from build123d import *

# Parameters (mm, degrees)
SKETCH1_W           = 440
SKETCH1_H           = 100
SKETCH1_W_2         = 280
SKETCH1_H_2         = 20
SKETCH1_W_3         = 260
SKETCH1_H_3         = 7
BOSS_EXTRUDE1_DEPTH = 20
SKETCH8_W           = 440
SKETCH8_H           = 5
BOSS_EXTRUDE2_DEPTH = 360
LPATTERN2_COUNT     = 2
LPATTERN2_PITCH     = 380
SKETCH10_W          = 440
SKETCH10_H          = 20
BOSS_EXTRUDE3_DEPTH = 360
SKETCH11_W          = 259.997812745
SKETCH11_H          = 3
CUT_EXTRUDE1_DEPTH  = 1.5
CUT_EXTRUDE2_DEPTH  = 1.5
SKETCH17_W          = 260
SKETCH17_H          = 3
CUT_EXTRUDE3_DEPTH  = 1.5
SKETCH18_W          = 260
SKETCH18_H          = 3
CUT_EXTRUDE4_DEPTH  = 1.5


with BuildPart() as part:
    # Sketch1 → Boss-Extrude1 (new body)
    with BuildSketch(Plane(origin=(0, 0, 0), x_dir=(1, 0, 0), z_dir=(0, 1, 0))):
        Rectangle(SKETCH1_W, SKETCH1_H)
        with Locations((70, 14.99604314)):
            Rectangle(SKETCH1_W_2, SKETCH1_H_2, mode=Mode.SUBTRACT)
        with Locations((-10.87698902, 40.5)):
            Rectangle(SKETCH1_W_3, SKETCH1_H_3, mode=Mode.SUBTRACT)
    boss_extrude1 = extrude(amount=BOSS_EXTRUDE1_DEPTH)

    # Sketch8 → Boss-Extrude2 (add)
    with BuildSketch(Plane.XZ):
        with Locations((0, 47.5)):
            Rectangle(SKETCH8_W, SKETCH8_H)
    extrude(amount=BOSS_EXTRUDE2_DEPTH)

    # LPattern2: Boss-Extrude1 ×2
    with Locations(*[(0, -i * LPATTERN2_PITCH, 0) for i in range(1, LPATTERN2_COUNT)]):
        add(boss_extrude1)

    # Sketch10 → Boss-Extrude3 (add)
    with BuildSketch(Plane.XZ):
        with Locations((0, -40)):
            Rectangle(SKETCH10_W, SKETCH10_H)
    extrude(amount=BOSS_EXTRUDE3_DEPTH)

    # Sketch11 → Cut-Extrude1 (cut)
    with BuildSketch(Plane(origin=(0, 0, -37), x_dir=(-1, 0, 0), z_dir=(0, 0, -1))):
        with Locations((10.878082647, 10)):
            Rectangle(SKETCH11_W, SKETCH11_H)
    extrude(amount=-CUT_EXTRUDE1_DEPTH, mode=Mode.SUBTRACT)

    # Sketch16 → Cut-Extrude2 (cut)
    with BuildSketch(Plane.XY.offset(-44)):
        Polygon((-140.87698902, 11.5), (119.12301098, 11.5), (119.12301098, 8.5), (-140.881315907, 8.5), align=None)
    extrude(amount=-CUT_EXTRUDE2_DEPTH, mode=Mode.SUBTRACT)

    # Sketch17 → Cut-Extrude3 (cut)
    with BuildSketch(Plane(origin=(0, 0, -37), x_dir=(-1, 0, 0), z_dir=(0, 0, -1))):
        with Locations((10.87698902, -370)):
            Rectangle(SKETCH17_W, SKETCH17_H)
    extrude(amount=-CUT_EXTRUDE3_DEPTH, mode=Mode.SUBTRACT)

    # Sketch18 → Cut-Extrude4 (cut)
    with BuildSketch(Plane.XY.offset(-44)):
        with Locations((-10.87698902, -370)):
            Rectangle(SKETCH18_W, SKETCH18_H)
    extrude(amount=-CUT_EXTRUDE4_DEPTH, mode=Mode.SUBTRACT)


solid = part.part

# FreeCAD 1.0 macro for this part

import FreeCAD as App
import Part
import Sketcher
Q = App.Units.Quantity

doc = App.newDocument("Part")
params = doc.addObject("Spreadsheet::Sheet", "Params")
for row, (alias, value) in enumerate([
    ("sketch1_width", "440 mm"),
    ("sketch1_width2", "280 mm"),
    ("sketch1_width3", "260 mm"),
    ("sketch1_height", "100 mm"),
    ("sketch1_height2", "20 mm"),
    ("pad1_length", "20 mm"),
    ("sketch2_width", "440 mm"),
    ("sketch2_height", "5 mm"),
    ("pad2_length", "360 mm"),
    ("linearpattern_pitch", "380 mm"),
    ("sketch3_width", "440 mm"),
    ("sketch3_height", "20 mm"),
    ("pad3_length", "360 mm"),
    ("sketch4_height", "3 mm"),
    ("pocket1_length", "1.5 mm"),
    ("sketch5_width", "260 mm"),
    ("sketch5_height", "3 mm"),
    ("pocket2_length", "1.5 mm"),
    ("sketch6_width", "260 mm"),
    ("sketch6_height", "3 mm"),
    ("pocket3_length", "1.5 mm"),
    ("sketch7_width", "260 mm"),
    ("sketch7_height", "3 mm"),
    ("pocket4_length", "1.5 mm"),
], start=1):
    params.set(f"A{row}", alias)
    params.set(f"B{row}", "=" + value)
    params.setAlias(f"B{row}", alias)

body = doc.addObject("PartDesign::Body", "Body")

sketch1 = body.newObject("Sketcher::SketchObject", "Sketch")
sketch1.AttachmentSupport = (doc.getObject("XZ_Plane"), [""])
sketch1.MapMode = "FlatFace"
sketch1.addGeometry(Part.LineSegment(App.Vector(-220, -50, 0), App.Vector(-220, 50, 0)), False)
sketch1.addGeometry(Part.LineSegment(App.Vector(-220, 50, 0), App.Vector(220, 50, 0)), False)
sketch1.addGeometry(Part.LineSegment(App.Vector(220, 50, 0), App.Vector(220, -50, 0)), False)
sketch1.addGeometry(Part.LineSegment(App.Vector(220, -50, 0), App.Vector(-220, -50, 0)), False)
sketch1.addGeometry(Part.LineSegment(App.Vector(210, -4.996043, 0), App.Vector(-70, -4.996043, 0)), False)
sketch1.addGeometry(Part.LineSegment(App.Vector(-70, -4.996043, 0), App.Vector(-70, -24.996043, 0)), False)
sketch1.addGeometry(Part.LineSegment(App.Vector(-70, -24.996043, 0), App.Vector(210, -24.996043, 0)), False)
sketch1.addGeometry(Part.LineSegment(App.Vector(210, -24.996043, 0), App.Vector(210, -4.996043, 0)), False)
sketch1.addGeometry(Part.LineSegment(App.Vector(119.123011, -37, 0), App.Vector(-140.876989, -37, 0)), False)
sketch1.addGeometry(Part.LineSegment(App.Vector(-140.876989, -37, 0), App.Vector(-140.876989, -44, 0)), False)
sketch1.addGeometry(Part.LineSegment(App.Vector(-140.876989, -44, 0), App.Vector(119.123011, -44, 0)), False)
sketch1.addGeometry(Part.LineSegment(App.Vector(119.123011, -44, 0), App.Vector(119.123011, -37, 0)), False)
sketch1.addConstraint(Sketcher.Constraint("Coincident", 0, 2, 1, 1))
sketch1.addConstraint(Sketcher.Constraint("Coincident", 1, 2, 2, 1))
sketch1.addConstraint(Sketcher.Constraint("Coincident", 2, 2, 3, 1))
sketch1.addConstraint(Sketcher.Constraint("Coincident", 3, 2, 0, 1))
sketch1.addConstraint(Sketcher.Constraint("Coincident", 4, 2, 5, 1))
sketch1.addConstraint(Sketcher.Constraint("Coincident", 5, 2, 6, 1))
sketch1.addConstraint(Sketcher.Constraint("Coincident", 6, 2, 7, 1))
sketch1.addConstraint(Sketcher.Constraint("Coincident", 7, 2, 4, 1))
sketch1.addConstraint(Sketcher.Constraint("Coincident", 8, 2, 9, 1))
sketch1.addConstraint(Sketcher.Constraint("Coincident", 9, 2, 10, 1))
sketch1.addConstraint(Sketcher.Constraint("Coincident", 10, 2, 11, 1))
sketch1.addConstraint(Sketcher.Constraint("Coincident", 11, 2, 8, 1))
sketch1.addConstraint(Sketcher.Constraint("Vertical", 0))
sketch1.addConstraint(Sketcher.Constraint("Horizontal", 1))
sketch1.addConstraint(Sketcher.Constraint("Vertical", 2))
sketch1.addConstraint(Sketcher.Constraint("Horizontal", 3))
sketch1.addConstraint(Sketcher.Constraint("Horizontal", 4))
sketch1.addConstraint(Sketcher.Constraint("Vertical", 5))
sketch1.addConstraint(Sketcher.Constraint("Horizontal", 6))
sketch1.addConstraint(Sketcher.Constraint("Vertical", 7))
sketch1.addConstraint(Sketcher.Constraint("Horizontal", 8))
sketch1.addConstraint(Sketcher.Constraint("Vertical", 9))
sketch1.addConstraint(Sketcher.Constraint("Horizontal", 10))
sketch1.addConstraint(Sketcher.Constraint("Vertical", 11))
sketch1.addConstraint(Sketcher.Constraint("Symmetric", 0, 2, 2, 2, -1, 1))
sketch1.addConstraint(Sketcher.Constraint("DistanceX", 1, 1, 1, 2, Q("440 mm")))
sketch1.addConstraint(Sketcher.Constraint("DistanceX", 4, 2, 4, 1, Q("280 mm")))
sketch1.addConstraint(Sketcher.Constraint("DistanceX", 8, 2, 8, 1, Q("260 mm")))
sketch1.addConstraint(Sketcher.Constraint("DistanceY", 0, 1, 0, 2, Q("100 mm")))
sketch1.addConstraint(Sketcher.Constraint("DistanceY", 5, 2, 5, 1, Q("20 mm")))
sketch1.addConstraint(Sketcher.Constraint("DistanceY", 9, 2, 9, 1, Q("7 mm")))
sketch1.addConstraint(Sketcher.Constraint("DistanceX", 4, 2, -1, 1, Q("70 mm")))
sketch1.addConstraint(Sketcher.Constraint("DistanceY", 8, 2, -1, 1, Q("37 mm")))
sketch1.addConstraint(Sketcher.Constraint("DistanceX", 8, 2, -1, 1, Q("140.876989 mm")))
sketch1.addConstraint(Sketcher.Constraint("DistanceY", 4, 2, -1, 1, Q("4.996043 mm")))
sketch1.setExpression("Constraints[25]", "Params.sketch1_width")
sketch1.setExpression("Constraints[26]", "Params.sketch1_width2")
sketch1.setExpression("Constraints[27]", "Params.sketch1_width3")
sketch1.setExpression("Constraints[28]", "Params.sketch1_height")
sketch1.setExpression("Constraints[29]", "Params.sketch1_height2")
pad1 = body.newObject("PartDesign::Pad", "Pad")
pad1.Profile = sketch1
pad1.setExpression("Length", "Params.pad1_length")
pad1.Reversed = True

sketch2 = body.newObject("Sketcher::SketchObject", "Sketch001")
sketch2.AttachmentSupport = (doc.getObject("XZ_Plane"), [""])
sketch2.MapMode = "FlatFace"
sketch2.addGeometry(Part.LineSegment(App.Vector(-220, 50, 0), App.Vector(-220, 45, 0)), False)
sketch2.addGeometry(Part.LineSegment(App.Vector(-220, 45, 0), App.Vector(220, 45, 0)), False)
sketch2.addGeometry(Part.LineSegment(App.Vector(220, 45, 0), App.Vector(220, 50, 0)), False)
sketch2.addGeometry(Part.LineSegment(App.Vector(220, 50, 0), App.Vector(-220, 50, 0)), False)
sketch2.addConstraint(Sketcher.Constraint("Coincident", 0, 2, 1, 1))
sketch2.addConstraint(Sketcher.Constraint("Coincident", 1, 2, 2, 1))
sketch2.addConstraint(Sketcher.Constraint("Coincident", 2, 2, 3, 1))
sketch2.addConstraint(Sketcher.Constraint("Coincident", 3, 2, 0, 1))
sketch2.addConstraint(Sketcher.Constraint("Vertical", 0))
sketch2.addConstraint(Sketcher.Constraint("Horizontal", 1))
sketch2.addConstraint(Sketcher.Constraint("Vertical", 2))
sketch2.addConstraint(Sketcher.Constraint("Horizontal", 3))
sketch2.addConstraint(Sketcher.Constraint("DistanceX", 1, 1, 1, 2, Q("440 mm")))
sketch2.addConstraint(Sketcher.Constraint("DistanceY", 0, 2, 0, 1, Q("5 mm")))
sketch2.addConstraint(Sketcher.Constraint("DistanceX", 0, 2, -1, 1, Q("220 mm")))
sketch2.addConstraint(Sketcher.Constraint("DistanceY", -1, 1, 0, 2, Q("45 mm")))
sketch2.setExpression("Constraints[8]", "Params.sketch2_width")
sketch2.setExpression("Constraints[9]", "Params.sketch2_height")
pad2 = body.newObject("PartDesign::Pad", "Pad001")
pad2.Profile = sketch2
pad2.setExpression("Length", "Params.pad2_length")
doc.recompute()

linearpattern = body.newObject("PartDesign::LinearPattern", "LinearPattern")
linearpattern.Originals = [pad1]
linearpattern.Direction = (doc.getObject("Y_Axis"), [""])
linearpattern.Mode = "offset"
linearpattern.setExpression("Offset", "Params.linearpattern_pitch")
linearpattern.Occurrences = 2
linearpattern.Reversed = True
body.Tip = linearpattern

sketch3 = body.newObject("Sketcher::SketchObject", "Sketch002")
sketch3.AttachmentSupport = (doc.getObject("XZ_Plane"), [""])
sketch3.MapMode = "FlatFace"
sketch3.addGeometry(Part.LineSegment(App.Vector(-220, -30, 0), App.Vector(-220, -50, 0)), False)
sketch3.addGeometry(Part.LineSegment(App.Vector(-220, -50, 0), App.Vector(220, -50, 0)), False)
sketch3.addGeometry(Part.LineSegment(App.Vector(220, -50, 0), App.Vector(220, -30, 0)), False)
sketch3.addGeometry(Part.LineSegment(App.Vector(220, -30, 0), App.Vector(-220, -30, 0)), False)
sketch3.addConstraint(Sketcher.Constraint("Coincident", 0, 2, 1, 1))
sketch3.addConstraint(Sketcher.Constraint("Coincident", 1, 2, 2, 1))
sketch3.addConstraint(Sketcher.Constraint("Coincident", 2, 2, 3, 1))
sketch3.addConstraint(Sketcher.Constraint("Coincident", 3, 2, 0, 1))
sketch3.addConstraint(Sketcher.Constraint("Vertical", 0))
sketch3.addConstraint(Sketcher.Constraint("Horizontal", 1))
sketch3.addConstraint(Sketcher.Constraint("Vertical", 2))
sketch3.addConstraint(Sketcher.Constraint("Horizontal", 3))
sketch3.addConstraint(Sketcher.Constraint("DistanceX", 1, 1, 1, 2, Q("440 mm")))
sketch3.addConstraint(Sketcher.Constraint("DistanceY", 0, 2, 0, 1, Q("20 mm")))
sketch3.addConstraint(Sketcher.Constraint("DistanceX", 0, 2, -1, 1, Q("220 mm")))
sketch3.addConstraint(Sketcher.Constraint("DistanceY", 0, 2, -1, 1, Q("50 mm")))
sketch3.setExpression("Constraints[8]", "Params.sketch3_width")
sketch3.setExpression("Constraints[9]", "Params.sketch3_height")
pad3 = body.newObject("PartDesign::Pad", "Pad002")
pad3.Profile = sketch3
pad3.setExpression("Length", "Params.pad3_length")

sketch4 = body.newObject("Sketcher::SketchObject", "Sketch003")
sketch4.AttachmentSupport = (doc.getObject("XY_Plane"), [""])
sketch4.MapMode = "FlatFace"
sketch4.AttachmentOffset = App.Placement(App.Vector(0, 0, -37), App.Rotation())
sketch4.addGeometry(Part.LineSegment(App.Vector(119.120824, 11.5, 0), App.Vector(119.120824, 8.5, 0)), False)
sketch4.addGeometry(Part.LineSegment(App.Vector(119.120824, 8.5, 0), App.Vector(-140.876989, 8.5, 0)), False)
sketch4.addGeometry(Part.LineSegment(App.Vector(-140.876989, 8.5, 0), App.Vector(-140.876989, 11.5, 0)), False)
sketch4.addGeometry(Part.LineSegment(App.Vector(-140.876989, 11.5, 0), App.Vector(119.120824, 11.5, 0)), False)
sketch4.addConstraint(Sketcher.Constraint("Coincident", 0, 2, 1, 1))
sketch4.addConstraint(Sketcher.Constraint("Coincident", 1, 2, 2, 1))
sketch4.addConstraint(Sketcher.Constraint("Coincident", 2, 2, 3, 1))
sketch4.addConstraint(Sketcher.Constraint("Coincident", 3, 2, 0, 1))
sketch4.addConstraint(Sketcher.Constraint("Vertical", 0))
sketch4.addConstraint(Sketcher.Constraint("Horizontal", 1))
sketch4.addConstraint(Sketcher.Constraint("Vertical", 2))
sketch4.addConstraint(Sketcher.Constraint("Horizontal", 3))
sketch4.addConstraint(Sketcher.Constraint("DistanceY", 0, 2, 0, 1, Q("3 mm")))
sketch4.addConstraint(Sketcher.Constraint("DistanceY", -1, 1, 0, 2, Q("8.5 mm")))
sketch4.addConstraint(Sketcher.Constraint("DistanceX", 1, 2, 1, 1, Q("259.997813 mm")))
sketch4.addConstraint(Sketcher.Constraint("DistanceX", 1, 2, -1, 1, Q("140.876989 mm")))
sketch4.setExpression("Constraints[8]", "Params.sketch4_height")
pocket1 = body.newObject("PartDesign::Pocket", "Pocket")
pocket1.Profile = sketch4
pocket1.setExpression("Length", "Params.pocket1_length")
pocket1.Reversed = True

sketch5 = body.newObject("Sketcher::SketchObject", "Sketch004")
sketch5.AttachmentSupport = (doc.getObject("XY_Plane"), [""])
sketch5.MapMode = "FlatFace"
sketch5.AttachmentOffset = App.Placement(App.Vector(0, 0, -44), App.Rotation())
sketch5.addGeometry(Part.LineSegment(App.Vector(119.123011, 11.5, 0), App.Vector(-140.876989, 11.5, 0)), False)
sketch5.addGeometry(Part.LineSegment(App.Vector(-140.876989, 11.5, 0), App.Vector(-140.881316, 8.5, 0)), False)
sketch5.addGeometry(Part.LineSegment(App.Vector(-140.881316, 8.5, 0), App.Vector(119.123011, 8.5, 0)), False)
sketch5.addGeometry(Part.LineSegment(App.Vector(119.123011, 8.5, 0), App.Vector(119.123011, 11.5, 0)), False)
sketch5.addConstraint(Sketcher.Constraint("Coincident", 0, 2, 1, 1))
sketch5.addConstraint(Sketcher.Constraint("Coincident", 1, 2, 2, 1))
sketch5.addConstraint(Sketcher.Constraint("Coincident", 2, 2, 3, 1))
sketch5.addConstraint(Sketcher.Constraint("Coincident", 3, 2, 0, 1))
sketch5.addConstraint(Sketcher.Constraint("Horizontal", 0))
sketch5.addConstraint(Sketcher.Constraint("Horizontal", 2))
sketch5.addConstraint(Sketcher.Constraint("Vertical", 3))
sketch5.addConstraint(Sketcher.Constraint("DistanceX", 0, 2, 0, 1, Q("260 mm")))
sketch5.addConstraint(Sketcher.Constraint("DistanceY", 3, 1, 3, 2, Q("3 mm")))
sketch5.addConstraint(Sketcher.Constraint("DistanceY", -1, 1, 0, 2, Q("11.5 mm")))
sketch5.addConstraint(Sketcher.Constraint("DistanceX", 2, 1, 2, 2, Q("260.004327 mm")))
sketch5.addConstraint(Sketcher.Constraint("DistanceX", 0, 2, -1, 1, Q("140.876989 mm")))
sketch5.setExpression("Constraints[7]", "Params.sketch5_width")
sketch5.setExpression("Constraints[8]", "Params.sketch5_height")
pocket2 = body.newObject("PartDesign::Pocket", "Pocket001")
pocket2.Profile = sketch5
pocket2.setExpression("Length", "Params.pocket2_length")

sketch6 = body.newObject("Sketcher::SketchObject", "Sketch005")
sketch6.AttachmentSupport = (doc.getObject("XY_Plane"), [""])
sketch6.MapMode = "FlatFace"
sketch6.AttachmentOffset = App.Placement(App.Vector(0, 0, -37), App.Rotation())
sketch6.addGeometry(Part.LineSegment(App.Vector(119.123011, -368.5, 0), App.Vector(119.123011, -371.5, 0)), False)
sketch6.addGeometry(Part.LineSegment(App.Vector(119.123011, -371.5, 0), App.Vector(-140.876989, -371.5, 0)), False)
sketch6.addGeometry(Part.LineSegment(App.Vector(-140.876989, -371.5, 0), App.Vector(-140.876989, -368.5, 0)), False)
sketch6.addGeometry(Part.LineSegment(App.Vector(-140.876989, -368.5, 0), App.Vector(119.123011, -368.5, 0)), False)
sketch6.addConstraint(Sketcher.Constraint("Coincident", 0, 2, 1, 1))
sketch6.addConstraint(Sketcher.Constraint("Coincident", 1, 2, 2, 1))
sketch6.addConstraint(Sketcher.Constraint("Coincident", 2, 2, 3, 1))
sketch6.addConstraint(Sketcher.Constraint("Coincident", 3, 2, 0, 1))
sketch6.addConstraint(Sketcher.Constraint("Vertical", 0))
sketch6.addConstraint(Sketcher.Constraint("Horizontal", 1))
sketch6.addConstraint(Sketcher.Constraint("Vertical", 2))
sketch6.addConstraint(Sketcher.Constraint("Horizontal", 3))
sketch6.addConstraint(Sketcher.Constraint("DistanceX", 1, 2, 1, 1, Q("260 mm")))
sketch6.addConstraint(Sketcher.Constraint("DistanceY", 0, 2, 0, 1, Q("3 mm")))
sketch6.addConstraint(Sketcher.Constraint("DistanceY", 0, 2, -1, 1, Q("371.5 mm")))
sketch6.addConstraint(Sketcher.Constraint("DistanceX", -1, 1, 0, 2, Q("119.123011 mm")))
sketch6.setExpression("Constraints[8]", "Params.sketch6_width")
sketch6.setExpression("Constraints[9]", "Params.sketch6_height")
pocket3 = body.newObject("PartDesign::Pocket", "Pocket002")
pocket3.Profile = sketch6
pocket3.setExpression("Length", "Params.pocket3_length")
pocket3.Reversed = True

sketch7 = body.newObject("Sketcher::SketchObject", "Sketch006")
sketch7.AttachmentSupport = (doc.getObject("XY_Plane"), [""])
sketch7.MapMode = "FlatFace"
sketch7.AttachmentOffset = App.Placement(App.Vector(0, 0, -44), App.Rotation())
sketch7.addGeometry(Part.LineSegment(App.Vector(-140.876989, -368.5, 0), App.Vector(-140.876989, -371.5, 0)), False)
sketch7.addGeometry(Part.LineSegment(App.Vector(-140.876989, -371.5, 0), App.Vector(119.123011, -371.5, 0)), False)
sketch7.addGeometry(Part.LineSegment(App.Vector(119.123011, -371.5, 0), App.Vector(119.123011, -368.5, 0)), False)
sketch7.addGeometry(Part.LineSegment(App.Vector(119.123011, -368.5, 0), App.Vector(-140.876989, -368.5, 0)), False)
sketch7.addConstraint(Sketcher.Constraint("Coincident", 0, 2, 1, 1))
sketch7.addConstraint(Sketcher.Constraint("Coincident", 1, 2, 2, 1))
sketch7.addConstraint(Sketcher.Constraint("Coincident", 2, 2, 3, 1))
sketch7.addConstraint(Sketcher.Constraint("Coincident", 3, 2, 0, 1))
sketch7.addConstraint(Sketcher.Constraint("Vertical", 0))
sketch7.addConstraint(Sketcher.Constraint("Horizontal", 1))
sketch7.addConstraint(Sketcher.Constraint("Vertical", 2))
sketch7.addConstraint(Sketcher.Constraint("Horizontal", 3))
sketch7.addConstraint(Sketcher.Constraint("DistanceX", 1, 1, 1, 2, Q("260 mm")))
sketch7.addConstraint(Sketcher.Constraint("DistanceY", 0, 2, 0, 1, Q("3 mm")))
sketch7.addConstraint(Sketcher.Constraint("DistanceY", 0, 2, -1, 1, Q("371.5 mm")))
sketch7.addConstraint(Sketcher.Constraint("DistanceX", 0, 2, -1, 1, Q("140.876989 mm")))
sketch7.setExpression("Constraints[8]", "Params.sketch7_width")
sketch7.setExpression("Constraints[9]", "Params.sketch7_height")
pocket4 = body.newObject("PartDesign::Pocket", "Pocket003")
pocket4.Profile = sketch7
pocket4.setExpression("Length", "Params.pocket4_length")

doc.recompute()
